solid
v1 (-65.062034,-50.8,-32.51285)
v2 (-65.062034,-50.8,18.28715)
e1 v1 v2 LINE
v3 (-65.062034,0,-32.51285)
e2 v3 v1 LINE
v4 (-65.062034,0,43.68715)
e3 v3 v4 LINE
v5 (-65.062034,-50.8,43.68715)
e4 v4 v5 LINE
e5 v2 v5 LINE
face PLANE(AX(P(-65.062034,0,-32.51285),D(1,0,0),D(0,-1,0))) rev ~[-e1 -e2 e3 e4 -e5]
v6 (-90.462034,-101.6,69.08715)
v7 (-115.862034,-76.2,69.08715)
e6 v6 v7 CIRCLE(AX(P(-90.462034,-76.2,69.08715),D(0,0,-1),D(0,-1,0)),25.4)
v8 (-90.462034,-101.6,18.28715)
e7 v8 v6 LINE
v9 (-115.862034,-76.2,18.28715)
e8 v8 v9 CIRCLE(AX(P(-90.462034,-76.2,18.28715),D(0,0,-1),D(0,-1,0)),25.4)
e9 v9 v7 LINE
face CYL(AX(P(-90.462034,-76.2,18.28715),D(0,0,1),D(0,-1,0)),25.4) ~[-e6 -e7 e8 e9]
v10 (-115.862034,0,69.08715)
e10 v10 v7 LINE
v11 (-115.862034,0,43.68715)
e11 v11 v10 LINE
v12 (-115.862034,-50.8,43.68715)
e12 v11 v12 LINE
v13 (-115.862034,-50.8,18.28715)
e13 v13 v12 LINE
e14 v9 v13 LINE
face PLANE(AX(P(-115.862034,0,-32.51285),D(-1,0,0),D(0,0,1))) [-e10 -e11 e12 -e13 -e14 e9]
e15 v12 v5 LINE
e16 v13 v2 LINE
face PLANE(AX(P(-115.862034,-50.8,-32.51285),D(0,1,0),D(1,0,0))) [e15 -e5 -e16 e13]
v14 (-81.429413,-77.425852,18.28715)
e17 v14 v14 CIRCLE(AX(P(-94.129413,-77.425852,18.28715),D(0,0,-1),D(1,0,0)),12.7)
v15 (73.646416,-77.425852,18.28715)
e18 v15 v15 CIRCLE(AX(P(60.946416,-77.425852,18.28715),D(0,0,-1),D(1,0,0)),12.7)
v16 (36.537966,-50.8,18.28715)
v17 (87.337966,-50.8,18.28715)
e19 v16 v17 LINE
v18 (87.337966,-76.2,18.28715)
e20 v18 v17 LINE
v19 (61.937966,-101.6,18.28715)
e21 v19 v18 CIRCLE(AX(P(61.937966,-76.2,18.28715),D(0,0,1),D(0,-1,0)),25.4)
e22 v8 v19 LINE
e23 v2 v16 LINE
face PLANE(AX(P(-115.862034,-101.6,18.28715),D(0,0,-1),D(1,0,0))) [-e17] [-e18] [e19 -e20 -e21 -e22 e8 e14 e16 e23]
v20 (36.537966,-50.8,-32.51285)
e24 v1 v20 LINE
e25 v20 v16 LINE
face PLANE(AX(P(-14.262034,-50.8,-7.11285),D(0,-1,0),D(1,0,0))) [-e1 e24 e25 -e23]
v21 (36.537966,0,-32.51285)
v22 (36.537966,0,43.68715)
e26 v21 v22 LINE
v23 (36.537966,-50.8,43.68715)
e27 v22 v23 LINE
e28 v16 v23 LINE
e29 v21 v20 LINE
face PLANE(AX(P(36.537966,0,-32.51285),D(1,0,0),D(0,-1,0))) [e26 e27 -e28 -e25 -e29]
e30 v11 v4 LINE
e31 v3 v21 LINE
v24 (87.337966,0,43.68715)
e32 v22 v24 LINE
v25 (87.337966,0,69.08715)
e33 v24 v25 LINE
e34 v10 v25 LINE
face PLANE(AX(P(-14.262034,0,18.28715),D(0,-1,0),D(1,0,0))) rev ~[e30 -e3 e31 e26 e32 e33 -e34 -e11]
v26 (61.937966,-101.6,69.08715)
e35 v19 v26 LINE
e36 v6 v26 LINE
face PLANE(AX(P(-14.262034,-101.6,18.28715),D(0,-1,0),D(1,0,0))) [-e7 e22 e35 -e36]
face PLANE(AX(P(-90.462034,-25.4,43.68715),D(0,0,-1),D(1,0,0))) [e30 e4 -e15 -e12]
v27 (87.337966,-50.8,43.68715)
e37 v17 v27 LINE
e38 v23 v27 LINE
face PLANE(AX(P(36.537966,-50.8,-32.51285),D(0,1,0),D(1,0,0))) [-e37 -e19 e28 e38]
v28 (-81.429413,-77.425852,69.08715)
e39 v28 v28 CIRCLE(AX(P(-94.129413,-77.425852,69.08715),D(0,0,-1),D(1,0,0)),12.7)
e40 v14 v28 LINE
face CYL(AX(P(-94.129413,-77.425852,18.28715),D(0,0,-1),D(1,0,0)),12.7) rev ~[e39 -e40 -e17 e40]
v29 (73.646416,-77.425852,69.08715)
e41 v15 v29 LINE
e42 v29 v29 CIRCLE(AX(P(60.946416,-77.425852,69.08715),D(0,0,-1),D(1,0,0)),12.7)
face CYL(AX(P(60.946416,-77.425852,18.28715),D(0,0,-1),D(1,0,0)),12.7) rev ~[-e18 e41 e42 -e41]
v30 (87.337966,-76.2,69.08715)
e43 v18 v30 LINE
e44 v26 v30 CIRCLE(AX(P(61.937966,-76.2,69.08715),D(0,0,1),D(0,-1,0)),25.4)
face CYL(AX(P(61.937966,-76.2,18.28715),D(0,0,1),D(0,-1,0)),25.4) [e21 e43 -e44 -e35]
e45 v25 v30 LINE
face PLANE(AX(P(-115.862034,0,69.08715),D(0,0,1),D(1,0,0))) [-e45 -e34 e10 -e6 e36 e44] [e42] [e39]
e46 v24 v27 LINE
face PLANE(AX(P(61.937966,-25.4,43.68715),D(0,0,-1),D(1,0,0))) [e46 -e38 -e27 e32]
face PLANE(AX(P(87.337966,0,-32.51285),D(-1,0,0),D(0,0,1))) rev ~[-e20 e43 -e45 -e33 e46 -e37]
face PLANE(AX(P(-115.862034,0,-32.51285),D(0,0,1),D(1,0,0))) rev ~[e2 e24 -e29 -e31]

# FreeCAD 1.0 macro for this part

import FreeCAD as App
import Part
import Sketcher
Q = App.Units.Quantity


def edges_at(feature, points):
    """Names of the edges that pass closest to the given points."""
    edges = feature.Shape.Edges
    near = lambda p: min(range(len(edges)), key=lambda i: edges[i].distToShape(Part.Vertex(*p))[0])
    return sorted({f"Edge{near(p) + 1}" for p in points})


def add_polygon(sketch, points):
    """Adds a closed chain of lines whose ends are joined by coincident constraints."""
    first, n = sketch.GeometryCount, len(points)
    for a, b in zip(points, points[1:] + points[:1]):
        sketch.addGeometry(Part.LineSegment(App.Vector(*a, 0), App.Vector(*b, 0)), False)
    for i in range(n):
        sketch.addConstraint(Sketcher.Constraint("Coincident", first + i, 2, first + (i + 1) % n, 1))

doc = App.newDocument("Part")
body = doc.addObject("PartDesign::Body", "Body")

# Sketch on XZ plane
sketch1 = doc.addObject("Sketcher::SketchObject", "Sketch")
body.addObject(sketch1)
sketch1.AttachmentSupport = (doc.XZ_Plane, [""])
sketch1.MapMode = "FlatFace"
add_polygon(sketch1, [(-116, 69), (-116, -33), (87, -33), (87, 69)])  # lines 0-3
sketch1.addConstraint(Sketcher.Constraint("Vertical", 0))
sketch1.addConstraint(Sketcher.Constraint("Horizontal", 1))
sketch1.addConstraint(Sketcher.Constraint("Vertical", 2))
sketch1.addConstraint(Sketcher.Constraint("Horizontal", 3))
sketch1.addConstraint(Sketcher.Constraint("DistanceX", 1, 1, 1, 2, Q("8 in")))
sketch1.addConstraint(Sketcher.Constraint("DistanceY", 0, 2, 0, 1, Q("4 in")))
sketch1.addConstraint(Sketcher.Constraint("DistanceY", 0, 2, -1, 1, Q("32.51285 mm")))
sketch1.addConstraint(Sketcher.Constraint("DistanceX", 0, 2, -1, 1, Q("115.862034 mm")))
pad1 = doc.addObject("PartDesign::Pad", "Pad")
body.addObject(pad1)
pad1.Profile = sketch1
pad1.Length = Q("4 in")

# Sketch on XZ plane
sketch2 = doc.addObject("Sketcher::SketchObject", "Sketch001")
body.addObject(sketch2)
sketch2.AttachmentSupport = (doc.XZ_Plane, [""])
sketch2.MapMode = "FlatFace"
sketch2.AttachmentOffset = App.Placement(App.Vector(0, 0, 4 * 25.4), App.Rotation())
add_polygon(sketch2, [(-116, 18), (-116, -33), (87, -33), (87, 18)])  # lines 0-3
sketch2.addConstraint(Sketcher.Constraint("Vertical", 0))
sketch2.addConstraint(Sketcher.Constraint("Horizontal", 1))
sketch2.addConstraint(Sketcher.Constraint("Vertical", 2))
sketch2.addConstraint(Sketcher.Constraint("Horizontal", 3))
sketch2.addConstraint(Sketcher.Constraint("DistanceX", 1, 1, 1, 2, Q("8 in")))
sketch2.addConstraint(Sketcher.Constraint("DistanceY", 0, 2, 0, 1, Q("2 in")))
sketch2.addConstraint(Sketcher.Constraint("DistanceY", 0, 2, -1, 1, Q("32.51285 mm")))
sketch2.addConstraint(Sketcher.Constraint("DistanceX", 0, 2, -1, 1, Q("115.862034 mm")))
pocket1 = doc.addObject("PartDesign::Pocket", "Pocket")
body.addObject(pocket1)
pocket1.Profile = sketch2
pocket1.Length = Q("2 in")

# Sketch on XY plane
sketch3 = doc.addObject("Sketcher::SketchObject", "Sketch002")
body.addObject(sketch3)
sketch3.AttachmentSupport = (doc.XY_Plane, [""])
sketch3.MapMode = "FlatFace"
sketch3.AttachmentOffset = App.Placement(App.Vector(0, 0, -32.51285), App.Rotation())
add_polygon(sketch3, [(37, -51), (37, 0), (87, 0), (87, -51)])  # lines 0-3
sketch3.addConstraint(Sketcher.Constraint("Vertical", 0))
sketch3.addConstraint(Sketcher.Constraint("Horizontal", 1))
sketch3.addConstraint(Sketcher.Constraint("Vertical", 2))
sketch3.addConstraint(Sketcher.Constraint("Horizontal", 3))
sketch3.addConstraint(Sketcher.Constraint("PointOnObject", 0, 2, -1))
sketch3.addConstraint(Sketcher.Constraint("Equal", 3, 0))
sketch3.addConstraint(Sketcher.Constraint("DistanceX", 1, 1, 1, 2, Q("2 in")))
sketch3.addConstraint(Sketcher.Constraint("DistanceX", -1, 1, 0, 2, Q("36.537966 mm")))
pocket2 = doc.addObject("PartDesign::Pocket", "Pocket001")
body.addObject(pocket2)
pocket2.Profile = sketch3
pocket2.Length = Q("3 in")
pocket2.Reversed = True

# Sketch on XY plane
sketch4 = doc.addObject("Sketcher::SketchObject", "Sketch003")
body.addObject(sketch4)
sketch4.AttachmentSupport = (doc.XY_Plane, [""])
sketch4.MapMode = "FlatFace"
sketch4.AttachmentOffset = App.Placement(App.Vector(0, 0, -32.51285), App.Rotation())
add_polygon(sketch4, [(-116, -51), (-116, 0), (-65, 0), (-65, -51)])  # lines 0-3
sketch4.addConstraint(Sketcher.Constraint("Vertical", 0))
sketch4.addConstraint(Sketcher.Constraint("Horizontal", 1))
sketch4.addConstraint(Sketcher.Constraint("Vertical", 2))
sketch4.addConstraint(Sketcher.Constraint("Horizontal", 3))
sketch4.addConstraint(Sketcher.Constraint("PointOnObject", 0, 2, -1))
sketch4.addConstraint(Sketcher.Constraint("Equal", 3, 0))
sketch4.addConstraint(Sketcher.Constraint("DistanceX", 1, 1, 1, 2, Q("2 in")))
sketch4.addConstraint(Sketcher.Constraint("DistanceX", 0, 2, -1, 1, Q("115.862034 mm")))
pocket3 = doc.addObject("PartDesign::Pocket", "Pocket002")
body.addObject(pocket3)
pocket3.Profile = sketch4
pocket3.Length = Q("3 in")
pocket3.Reversed = True
doc.recompute()

fillet = doc.addObject("PartDesign::Fillet", "Fillet")
body.addObject(fillet)
fillet.Base = (pocket3, edges_at(pocket3, [(87.338, -101.6, 43.687)]))
fillet.Radius = Q("1 in")
doc.recompute()

fillet2 = doc.addObject("PartDesign::Fillet", "Fillet001")
body.addObject(fillet2)
fillet2.Base = (fillet, edges_at(fillet, [(-115.862, -101.6, 43.687)]))
fillet2.Radius = Q("1 in")

# Sketch on XY plane
sketch5 = doc.addObject("Sketcher::SketchObject", "Sketch004")
body.addObject(sketch5)
sketch5.AttachmentSupport = (doc.XY_Plane, [""])
sketch5.MapMode = "FlatFace"
sketch5.AttachmentOffset = App.Placement(App.Vector(0, 0, 18.28715), App.Rotation())
sketch5.addGeometry(Part.Circle(App.Vector(-94.1, -77.4, 0), App.Vector(0, 0, 1), 3.2), False)
sketch5.addConstraint(Sketcher.Constraint("Diameter", 0, Q("0.25 in")))
sketch5.addConstraint(Sketcher.Constraint("DistanceX", 0, 3, -1, 1, Q("94.129413 mm")))
sketch5.addConstraint(Sketcher.Constraint("DistanceY", 0, 3, -1, 1, Q("77.425852 mm")))
doc.recompute()
hole = doc.addObject("PartDesign::Hole", "Hole")
body.addObject(hole)
hole.Profile = sketch5
hole.ThreadType = "None"
hole.Diameter = Q("0.25 in")
hole.DepthType = "ThroughAll"
hole.Reversed = True

# Sketch on XY plane
sketch6 = doc.addObject("Sketcher::SketchObject", "Sketch005")
body.addObject(sketch6)
sketch6.AttachmentSupport = (doc.XY_Plane, [""])
sketch6.MapMode = "FlatFace"
sketch6.AttachmentOffset = App.Placement(App.Vector(0, 0, 18.28715), App.Rotation())
sketch6.addGeometry(Part.Circle(App.Vector(61, -77, 0), App.Vector(0, 0, 1), 13), False)
sketch6.addConstraint(Sketcher.Constraint("Diameter", 0, Q("1 in")))
sketch6.addConstraint(Sketcher.Constraint("DistanceX", -1, 1, 0, 3, Q("60.946416 mm")))
sketch6.addConstraint(Sketcher.Constraint("DistanceY", 0, 3, -1, 1, Q("77.425852 mm")))
pocket4 = doc.addObject("PartDesign::Pocket", "Pocket003")
body.addObject(pocket4)
pocket4.Profile = sketch6
pocket4.Length = Q("4 in")
pocket4.Reversed = True

# Sketch on XY plane
sketch7 = doc.addObject("Sketcher::SketchObject", "Sketch006")
body.addObject(sketch7)
sketch7.AttachmentSupport = (doc.XY_Plane, [""])
sketch7.MapMode = "FlatFace"
sketch7.AttachmentOffset = App.Placement(App.Vector(0, 0, 18.28715), App.Rotation())
sketch7.addGeometry(Part.Circle(App.Vector(-94.1, -77.4, 0), App.Vector(0, 0, 1), 12.7), False)
sketch7.addGeometry(Part.Circle(App.Vector(-94.1, -77.4, 0), App.Vector(0, 0, 1), 3.2), False)
sketch7.addConstraint(Sketcher.Constraint("Coincident", 1, 3, 0, 3))
sketch7.addConstraint(Sketcher.Constraint("Diameter", 0, Q("1 in")))
sketch7.addConstraint(Sketcher.Constraint("Diameter", 1, Q("0.25 in")))
sketch7.addConstraint(Sketcher.Constraint("DistanceX", 0, 3, -1, 1, Q("94.129413 mm")))
sketch7.addConstraint(Sketcher.Constraint("DistanceY", 0, 3, -1, 1, Q("77.425852 mm")))
pocket5 = doc.addObject("PartDesign::Pocket", "Pocket004")
body.addObject(pocket5)
pocket5.Profile = sketch7
pocket5.Length = Q("4 in")
pocket5.Reversed = True

doc.recompute()
